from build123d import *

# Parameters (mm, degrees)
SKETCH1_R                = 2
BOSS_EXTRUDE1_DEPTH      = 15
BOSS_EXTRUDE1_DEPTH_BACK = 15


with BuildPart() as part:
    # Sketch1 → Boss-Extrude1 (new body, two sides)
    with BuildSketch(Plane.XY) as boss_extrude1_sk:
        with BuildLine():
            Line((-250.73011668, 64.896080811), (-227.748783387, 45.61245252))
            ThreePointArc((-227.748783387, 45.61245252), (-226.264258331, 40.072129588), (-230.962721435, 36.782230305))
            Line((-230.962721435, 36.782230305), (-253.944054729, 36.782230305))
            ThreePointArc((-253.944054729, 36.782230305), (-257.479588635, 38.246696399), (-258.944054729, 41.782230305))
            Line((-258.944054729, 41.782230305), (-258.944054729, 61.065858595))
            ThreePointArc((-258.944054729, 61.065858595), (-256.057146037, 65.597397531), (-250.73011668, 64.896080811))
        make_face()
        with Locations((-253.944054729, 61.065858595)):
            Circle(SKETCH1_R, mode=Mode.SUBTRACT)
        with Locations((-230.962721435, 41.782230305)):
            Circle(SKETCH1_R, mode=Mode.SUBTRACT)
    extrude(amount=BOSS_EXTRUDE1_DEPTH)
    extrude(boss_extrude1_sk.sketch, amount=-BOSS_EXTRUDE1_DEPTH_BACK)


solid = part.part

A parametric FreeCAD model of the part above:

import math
import FreeCAD as App
import Part
import Sketcher
Q = App.Units.Quantity

doc = App.newDocument("Part")
body = doc.addObject("PartDesign::Body", "Body")

# Sketch on XY plane
sketch1 = body.newObject("Sketcher::SketchObject", "Sketch")
sketch1.AttachmentSupport = (doc.getObject("XY_Plane"), [""])
sketch1.MapMode = "FlatFace"
sketch1.addGeometry([
    Part.LineSegment(App.Vector(-227.748783, 45.612453, 0), App.Vector(-250.730117, 64.896081, 0)),  # 0
    Part.ArcOfCircle(Part.Circle(App.Vector(-253.944055, 61.065859, 0), App.Vector(0, 0, 1), 5), math.radians(50), math.radians(180)),  # 1
    Part.LineSegment(App.Vector(-258.944055, 61.065859, 0), App.Vector(-258.944055, 41.78223, 0)),  # 2
    Part.ArcOfCircle(Part.Circle(App.Vector(-253.944055, 41.78223, 0), App.Vector(0, 0, 1), 5), math.radians(180), math.radians(270)),  # 3
    Part.LineSegment(App.Vector(-253.944055, 36.78223, 0), App.Vector(-230.962721, 36.78223, 0)),  # 4
    Part.ArcOfCircle(Part.Circle(App.Vector(-230.962721, 41.78223, 0), App.Vector(0, 0, 1), 5), math.radians(-90), math.radians(50)),  # 5
    Part.Circle(App.Vector(-230.962721, 41.78223, 0), App.Vector(0, 0, 1), 2),  # 6
    Part.Circle(App.Vector(-253.944055, 61.065859, 0), App.Vector(0, 0, 1), 2),  # 7
], False)
sketch1.addConstraint([
    Sketcher.Constraint("Tangent", 0, 2, 1, 1),
    Sketcher.Constraint("Tangent", 1, 2, 2, 1),
    Sketcher.Constraint("Tangent", 2, 2, 3, 1),
    Sketcher.Constraint("Tangent", 3, 2, 4, 1),
    Sketcher.Constraint("Tangent", 4, 2, 5, 1),
    Sketcher.Constraint("Tangent", 5, 2, 0, 1),
    Sketcher.Constraint("Vertical", 2),
    Sketcher.Constraint("Horizontal", 4),
    Sketcher.Constraint("Coincident", 6, 3, 5, 3),
    Sketcher.Constraint("Coincident", 7, 3, 1, 3),
    Sketcher.Constraint("Equal", 1, 3),
    Sketcher.Constraint("Equal", 3, 5),
    Sketcher.Constraint("Equal", 6, 7),
    Sketcher.Constraint("Diameter", 6, Q("4 mm")),
    Sketcher.Constraint("Radius", 1, Q("5 mm")),
    Sketcher.Constraint("Angle", 0, Q("140 deg")),
    Sketcher.Constraint("Distance", 0, Q("30 mm")),
    Sketcher.Constraint("DistanceY", -1, 1, 1, 3, Q("61.065859 mm")),
    Sketcher.Constraint("DistanceX", 5, 3, -1, 1, Q("230.962721 mm")),
])
pad1 = body.newObject("PartDesign::Pad", "Pad")
pad1.Profile = sketch1
pad1.Type = "TwoLengths"
pad1.Length = 15
pad1.Length2 = 15

doc.recompute()
